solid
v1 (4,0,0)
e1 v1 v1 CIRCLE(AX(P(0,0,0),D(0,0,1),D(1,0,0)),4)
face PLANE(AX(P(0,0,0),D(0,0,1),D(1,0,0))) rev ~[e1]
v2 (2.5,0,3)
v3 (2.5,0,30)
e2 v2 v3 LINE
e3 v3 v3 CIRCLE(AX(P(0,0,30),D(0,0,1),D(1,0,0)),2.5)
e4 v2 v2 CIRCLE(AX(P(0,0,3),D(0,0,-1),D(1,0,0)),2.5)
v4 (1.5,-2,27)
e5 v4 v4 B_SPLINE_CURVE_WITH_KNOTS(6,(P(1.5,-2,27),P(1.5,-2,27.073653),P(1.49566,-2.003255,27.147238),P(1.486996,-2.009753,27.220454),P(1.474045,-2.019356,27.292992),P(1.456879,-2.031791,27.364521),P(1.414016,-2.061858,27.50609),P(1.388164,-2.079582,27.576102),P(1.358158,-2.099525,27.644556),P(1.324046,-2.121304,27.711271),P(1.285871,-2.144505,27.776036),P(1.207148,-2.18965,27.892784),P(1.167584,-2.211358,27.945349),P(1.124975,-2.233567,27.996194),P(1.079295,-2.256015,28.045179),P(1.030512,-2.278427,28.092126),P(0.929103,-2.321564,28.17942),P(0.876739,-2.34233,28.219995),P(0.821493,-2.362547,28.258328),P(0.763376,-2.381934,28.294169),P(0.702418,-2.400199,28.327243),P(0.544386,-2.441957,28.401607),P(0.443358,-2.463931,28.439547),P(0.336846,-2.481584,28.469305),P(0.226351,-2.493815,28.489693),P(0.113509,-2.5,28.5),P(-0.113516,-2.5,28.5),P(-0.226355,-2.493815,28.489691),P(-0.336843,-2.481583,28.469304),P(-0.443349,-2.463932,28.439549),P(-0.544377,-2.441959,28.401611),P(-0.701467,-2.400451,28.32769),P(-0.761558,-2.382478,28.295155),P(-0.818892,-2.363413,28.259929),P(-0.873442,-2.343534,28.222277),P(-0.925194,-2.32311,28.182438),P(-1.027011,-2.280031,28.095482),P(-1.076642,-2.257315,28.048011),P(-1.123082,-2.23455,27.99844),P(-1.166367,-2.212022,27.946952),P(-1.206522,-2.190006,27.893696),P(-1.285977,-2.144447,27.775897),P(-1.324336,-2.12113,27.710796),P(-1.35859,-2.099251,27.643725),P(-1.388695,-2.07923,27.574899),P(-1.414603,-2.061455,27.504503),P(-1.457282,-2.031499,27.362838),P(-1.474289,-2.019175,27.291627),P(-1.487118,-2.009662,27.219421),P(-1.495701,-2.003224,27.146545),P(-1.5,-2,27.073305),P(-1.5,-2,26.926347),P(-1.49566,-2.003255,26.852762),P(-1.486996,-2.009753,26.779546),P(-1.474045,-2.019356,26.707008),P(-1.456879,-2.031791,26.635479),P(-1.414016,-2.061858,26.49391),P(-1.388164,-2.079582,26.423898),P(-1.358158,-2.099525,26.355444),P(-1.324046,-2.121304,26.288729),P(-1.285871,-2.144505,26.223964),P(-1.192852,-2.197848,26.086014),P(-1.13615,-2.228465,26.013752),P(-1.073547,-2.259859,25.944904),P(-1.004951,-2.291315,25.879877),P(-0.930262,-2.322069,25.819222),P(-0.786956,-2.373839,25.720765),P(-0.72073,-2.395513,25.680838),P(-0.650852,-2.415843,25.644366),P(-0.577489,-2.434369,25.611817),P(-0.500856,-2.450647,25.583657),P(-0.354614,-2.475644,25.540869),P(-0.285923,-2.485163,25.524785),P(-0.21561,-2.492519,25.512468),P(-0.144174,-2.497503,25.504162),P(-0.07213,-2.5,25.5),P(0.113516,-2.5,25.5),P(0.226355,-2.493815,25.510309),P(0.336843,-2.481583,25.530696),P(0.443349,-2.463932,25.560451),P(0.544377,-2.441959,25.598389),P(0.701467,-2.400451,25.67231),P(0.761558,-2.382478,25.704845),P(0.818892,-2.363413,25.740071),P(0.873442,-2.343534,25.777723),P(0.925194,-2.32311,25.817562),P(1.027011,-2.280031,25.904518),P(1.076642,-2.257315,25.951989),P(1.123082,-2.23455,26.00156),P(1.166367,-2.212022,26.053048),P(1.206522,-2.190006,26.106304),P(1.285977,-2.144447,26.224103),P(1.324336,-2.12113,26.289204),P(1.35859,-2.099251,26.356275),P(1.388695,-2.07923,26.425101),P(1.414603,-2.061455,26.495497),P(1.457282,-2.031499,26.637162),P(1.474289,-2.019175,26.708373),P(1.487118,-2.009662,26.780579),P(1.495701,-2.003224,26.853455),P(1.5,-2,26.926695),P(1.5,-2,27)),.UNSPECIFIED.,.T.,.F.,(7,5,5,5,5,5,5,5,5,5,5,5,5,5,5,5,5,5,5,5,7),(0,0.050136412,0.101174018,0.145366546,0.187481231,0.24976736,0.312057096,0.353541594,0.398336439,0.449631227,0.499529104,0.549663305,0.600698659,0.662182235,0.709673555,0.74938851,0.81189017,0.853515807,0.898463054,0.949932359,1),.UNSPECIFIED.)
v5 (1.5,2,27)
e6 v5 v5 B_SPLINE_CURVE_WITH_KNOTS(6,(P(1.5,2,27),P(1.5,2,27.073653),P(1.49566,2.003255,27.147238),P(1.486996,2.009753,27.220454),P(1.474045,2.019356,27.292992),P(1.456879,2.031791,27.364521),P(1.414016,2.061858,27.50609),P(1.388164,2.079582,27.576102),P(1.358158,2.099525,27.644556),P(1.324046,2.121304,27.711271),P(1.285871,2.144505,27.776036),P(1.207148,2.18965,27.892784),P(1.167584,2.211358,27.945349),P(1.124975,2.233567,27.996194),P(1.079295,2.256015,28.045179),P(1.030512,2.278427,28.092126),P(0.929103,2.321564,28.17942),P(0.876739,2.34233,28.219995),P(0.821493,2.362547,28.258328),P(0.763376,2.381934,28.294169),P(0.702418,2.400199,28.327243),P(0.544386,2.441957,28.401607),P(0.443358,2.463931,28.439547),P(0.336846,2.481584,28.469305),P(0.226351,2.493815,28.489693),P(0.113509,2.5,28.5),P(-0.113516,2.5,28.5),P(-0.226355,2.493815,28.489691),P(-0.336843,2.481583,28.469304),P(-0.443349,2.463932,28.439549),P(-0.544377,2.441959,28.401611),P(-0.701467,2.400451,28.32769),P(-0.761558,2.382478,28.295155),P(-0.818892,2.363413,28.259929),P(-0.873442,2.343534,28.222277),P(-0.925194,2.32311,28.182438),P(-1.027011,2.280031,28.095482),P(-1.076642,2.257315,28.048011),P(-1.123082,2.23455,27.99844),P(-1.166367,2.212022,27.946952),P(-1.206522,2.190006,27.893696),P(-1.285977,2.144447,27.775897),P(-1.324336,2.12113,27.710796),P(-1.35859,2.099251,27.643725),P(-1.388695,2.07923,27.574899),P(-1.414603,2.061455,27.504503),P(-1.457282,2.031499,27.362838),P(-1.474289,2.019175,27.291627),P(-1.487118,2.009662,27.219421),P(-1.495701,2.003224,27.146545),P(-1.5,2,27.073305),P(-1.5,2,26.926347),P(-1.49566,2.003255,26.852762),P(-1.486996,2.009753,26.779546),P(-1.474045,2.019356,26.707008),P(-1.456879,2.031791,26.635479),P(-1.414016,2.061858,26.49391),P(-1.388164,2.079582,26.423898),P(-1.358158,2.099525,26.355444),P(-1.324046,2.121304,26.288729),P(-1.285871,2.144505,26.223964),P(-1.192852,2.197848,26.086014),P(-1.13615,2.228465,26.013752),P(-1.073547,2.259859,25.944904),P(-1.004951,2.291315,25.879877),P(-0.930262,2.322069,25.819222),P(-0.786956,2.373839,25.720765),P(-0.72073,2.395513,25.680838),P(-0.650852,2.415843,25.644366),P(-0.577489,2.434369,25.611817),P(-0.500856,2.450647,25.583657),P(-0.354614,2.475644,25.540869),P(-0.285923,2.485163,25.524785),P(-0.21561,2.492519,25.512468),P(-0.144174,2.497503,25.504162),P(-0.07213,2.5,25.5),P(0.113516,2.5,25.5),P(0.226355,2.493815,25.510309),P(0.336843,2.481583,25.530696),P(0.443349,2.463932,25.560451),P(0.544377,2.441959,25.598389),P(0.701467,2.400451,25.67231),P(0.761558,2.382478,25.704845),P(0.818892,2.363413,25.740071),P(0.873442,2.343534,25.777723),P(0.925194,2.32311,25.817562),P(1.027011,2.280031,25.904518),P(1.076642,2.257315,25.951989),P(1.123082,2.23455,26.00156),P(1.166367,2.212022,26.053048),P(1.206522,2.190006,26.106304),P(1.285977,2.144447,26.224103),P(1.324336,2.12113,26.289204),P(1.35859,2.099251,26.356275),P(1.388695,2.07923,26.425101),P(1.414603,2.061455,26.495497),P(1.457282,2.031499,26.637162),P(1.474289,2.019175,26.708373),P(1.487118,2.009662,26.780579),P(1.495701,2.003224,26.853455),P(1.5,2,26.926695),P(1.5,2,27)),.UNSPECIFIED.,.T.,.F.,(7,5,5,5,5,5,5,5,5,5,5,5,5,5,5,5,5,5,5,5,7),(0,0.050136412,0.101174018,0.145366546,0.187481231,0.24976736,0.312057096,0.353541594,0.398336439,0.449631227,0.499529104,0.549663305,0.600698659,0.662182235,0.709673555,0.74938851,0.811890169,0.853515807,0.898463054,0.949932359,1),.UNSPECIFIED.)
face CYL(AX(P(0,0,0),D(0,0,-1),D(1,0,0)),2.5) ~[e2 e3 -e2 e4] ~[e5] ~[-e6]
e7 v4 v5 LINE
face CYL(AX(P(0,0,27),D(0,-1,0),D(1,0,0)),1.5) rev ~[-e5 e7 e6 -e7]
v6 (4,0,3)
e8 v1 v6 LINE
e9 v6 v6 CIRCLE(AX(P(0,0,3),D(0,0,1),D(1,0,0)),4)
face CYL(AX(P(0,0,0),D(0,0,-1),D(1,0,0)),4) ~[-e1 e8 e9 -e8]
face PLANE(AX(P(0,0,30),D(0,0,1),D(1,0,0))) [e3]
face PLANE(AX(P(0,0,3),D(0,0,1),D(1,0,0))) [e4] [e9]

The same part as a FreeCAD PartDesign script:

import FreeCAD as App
import Part
import Sketcher

doc = App.newDocument("Part")
body = doc.addObject("PartDesign::Body", "Body")

# Sketch on XY plane
sketch1 = body.newObject("Sketcher::SketchObject", "Sketch")
sketch1.AttachmentSupport = (doc.getObject("XY_Plane"), [""])
sketch1.MapMode = "FlatFace"
sketch1.addGeometry(Part.Circle(App.Vector(0, 0, 0), App.Vector(0, 0, 1), 2.5), False)
sketch1.addConstraint([
    Sketcher.Constraint("Coincident", 0, 3, -1, 1),
    Sketcher.Constraint("Diameter", 0, 5.0),
])
pad1 = body.newObject("PartDesign::Pad", "Pad")
pad1.Profile = sketch1
pad1.Length = 30

# Sketch on XY plane
sketch2 = body.newObject("Sketcher::SketchObject", "Sketch001")
sketch2.AttachmentSupport = (doc.getObject("XY_Plane"), [""])
sketch2.MapMode = "FlatFace"
sketch2.addGeometry(Part.Circle(App.Vector(0, 0, 0), App.Vector(0, 0, 1), 4), False)
sketch2.addConstraint([
    Sketcher.Constraint("Coincident", 0, 3, -1, 1),
    Sketcher.Constraint("Diameter", 0, 8.0),
])
pad2 = body.newObject("PartDesign::Pad", "Pad001")
pad2.Profile = sketch2
pad2.Length = 3

# Sketch on XZ plane
sketch3 = body.newObject("Sketcher::SketchObject", "Sketch002")
sketch3.AttachmentSupport = (doc.getObject("XZ_Plane"), [""])
sketch3.MapMode = "FlatFace"
sketch3.addGeometry(Part.Circle(App.Vector(0, 27, 0), App.Vector(0, 0, 1), 1.5), False)
sketch3.addConstraint([
    Sketcher.Constraint("PointOnObject", 0, 3, -2),
    Sketcher.Constraint("Diameter", 0, 3.0),
    Sketcher.Constraint("DistanceY", -1, 1, 0, 3, 27.0),
])
pocket1 = body.newObject("PartDesign::Pocket", "Pocket")
pocket1.Profile = sketch3
pocket1.Type = "ThroughAll"
pocket1.Midplane = True

doc.recompute()
